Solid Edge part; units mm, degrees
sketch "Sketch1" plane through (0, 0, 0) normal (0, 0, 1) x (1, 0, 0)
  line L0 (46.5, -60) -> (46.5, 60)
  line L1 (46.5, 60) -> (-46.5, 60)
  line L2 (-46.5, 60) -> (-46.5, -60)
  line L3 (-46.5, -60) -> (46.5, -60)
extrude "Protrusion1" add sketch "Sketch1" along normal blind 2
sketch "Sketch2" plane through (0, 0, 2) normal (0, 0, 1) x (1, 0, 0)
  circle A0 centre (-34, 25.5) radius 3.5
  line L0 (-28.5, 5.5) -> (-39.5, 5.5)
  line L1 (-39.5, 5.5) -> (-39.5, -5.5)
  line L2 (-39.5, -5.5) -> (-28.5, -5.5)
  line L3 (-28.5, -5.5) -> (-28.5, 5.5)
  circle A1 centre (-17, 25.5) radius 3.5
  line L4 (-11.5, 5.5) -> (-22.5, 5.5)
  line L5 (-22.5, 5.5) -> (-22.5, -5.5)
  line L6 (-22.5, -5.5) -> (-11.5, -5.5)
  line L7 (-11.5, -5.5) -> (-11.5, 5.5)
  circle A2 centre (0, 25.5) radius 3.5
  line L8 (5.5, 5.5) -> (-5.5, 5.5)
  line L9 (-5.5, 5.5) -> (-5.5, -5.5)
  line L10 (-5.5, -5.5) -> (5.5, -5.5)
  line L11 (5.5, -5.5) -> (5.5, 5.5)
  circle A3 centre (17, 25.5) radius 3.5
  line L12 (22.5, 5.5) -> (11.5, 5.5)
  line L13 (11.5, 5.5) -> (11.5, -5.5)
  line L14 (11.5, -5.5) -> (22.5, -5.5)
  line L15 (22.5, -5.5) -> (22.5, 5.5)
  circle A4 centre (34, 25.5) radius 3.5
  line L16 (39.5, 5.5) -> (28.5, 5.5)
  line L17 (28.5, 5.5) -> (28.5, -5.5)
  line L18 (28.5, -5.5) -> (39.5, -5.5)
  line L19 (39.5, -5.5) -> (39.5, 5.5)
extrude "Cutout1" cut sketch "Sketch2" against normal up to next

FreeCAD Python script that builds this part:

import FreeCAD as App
import Part
import Sketcher


def add_polygon(sketch, points):
    """Adds a closed chain of lines whose ends are joined by coincident constraints."""
    first, n = sketch.GeometryCount, len(points)
    for a, b in zip(points, points[1:] + points[:1]):
        sketch.addGeometry(Part.LineSegment(App.Vector(*a, 0), App.Vector(*b, 0)), False)
    for i in range(n):
        sketch.addConstraint(Sketcher.Constraint("Coincident", first + i, 2, first + (i + 1) % n, 1))

doc = App.newDocument("Part")
body = doc.addObject("PartDesign::Body", "Body")

sketch1 = body.newObject("Sketcher::SketchObject", "Sketch")
sketch1.AttachmentSupport = (doc.getObject("XY_Plane"), [""])
sketch1.MapMode = "FlatFace"
add_polygon(sketch1, [(-46.5, -60), (46.5, -60), (46.5, 60), (-46.5, 60)])
sketch1.addConstraint(Sketcher.Constraint("Horizontal", 0))
sketch1.addConstraint(Sketcher.Constraint("Vertical", 1))
sketch1.addConstraint(Sketcher.Constraint("Horizontal", 2))
sketch1.addConstraint(Sketcher.Constraint("Vertical", 3))
sketch1.addConstraint(Sketcher.Constraint("Symmetric", 0, 2, 2, 2, -1, 1))
sketch1.addConstraint(Sketcher.Constraint("DistanceX", 0, 1, 0, 2, 93.0))
sketch1.addConstraint(Sketcher.Constraint("DistanceY", 1, 1, 1, 2, 120.0))
pad1 = body.newObject("PartDesign::Pad", "Pad")
pad1.Profile = sketch1
pad1.Length = 2

sketch2 = body.newObject("Sketcher::SketchObject", "Sketch001")
sketch2.AttachmentSupport = (doc.getObject("XY_Plane"), [""])
sketch2.MapMode = "FlatFace"
sketch2.AttachmentOffset = App.Placement(App.Vector(0, 0, 2), App.Rotation())
sketch2.addGeometry(Part.Circle(App.Vector(-34, 25.5, 0), App.Vector(0, 0, 1), 3.5), False)
add_polygon(sketch2, [(-28.5, -5.5), (-28.5, 5.5), (-39.5, 5.5), (-39.5, -5.5)])
sketch2.addGeometry(Part.Circle(App.Vector(-17, 25.5, 0), App.Vector(0, 0, 1), 3.5), False)
add_polygon(sketch2, [(-11.5, -5.5), (-11.5, 5.5), (-22.5, 5.5), (-22.5, -5.5)])
sketch2.addGeometry(Part.Circle(App.Vector(0, 25.5, 0), App.Vector(0, 0, 1), 3.5), False)
add_polygon(sketch2, [(5.5, -5.5), (5.5, 5.5), (-5.5, 5.5), (-5.5, -5.5)])
sketch2.addGeometry(Part.Circle(App.Vector(17, 25.5, 0), App.Vector(0, 0, 1), 3.5), False)
add_polygon(sketch2, [(22.5, -5.5), (22.5, 5.5), (11.5, 5.5), (11.5, -5.5)])
sketch2.addGeometry(Part.Circle(App.Vector(34, 25.5, 0), App.Vector(0, 0, 1), 3.5), False)
add_polygon(sketch2, [(39.5, -5.5), (39.5, 5.5), (28.5, 5.5), (28.5, -5.5)])
sketch2.addConstraint(Sketcher.Constraint("Vertical", 1))
sketch2.addConstraint(Sketcher.Constraint("Horizontal", 2))
sketch2.addConstraint(Sketcher.Constraint("Vertical", 3))
sketch2.addConstraint(Sketcher.Constraint("Horizontal", 4))
sketch2.addConstraint(Sketcher.Constraint("Vertical", 6))
sketch2.addConstraint(Sketcher.Constraint("Horizontal", 7))
sketch2.addConstraint(Sketcher.Constraint("Vertical", 8))
sketch2.addConstraint(Sketcher.Constraint("Horizontal", 9))
sketch2.addConstraint(Sketcher.Constraint("Vertical", 11))
sketch2.addConstraint(Sketcher.Constraint("Horizontal", 12))
sketch2.addConstraint(Sketcher.Constraint("Vertical", 13))
sketch2.addConstraint(Sketcher.Constraint("Horizontal", 14))
sketch2.addConstraint(Sketcher.Constraint("Vertical", 16))
sketch2.addConstraint(Sketcher.Constraint("Horizontal", 17))
sketch2.addConstraint(Sketcher.Constraint("Vertical", 18))
sketch2.addConstraint(Sketcher.Constraint("Horizontal", 19))
sketch2.addConstraint(Sketcher.Constraint("Vertical", 21))
sketch2.addConstraint(Sketcher.Constraint("Horizontal", 22))
sketch2.addConstraint(Sketcher.Constraint("Vertical", 23))
sketch2.addConstraint(Sketcher.Constraint("Horizontal", 24))
sketch2.addConstraint(Sketcher.Constraint("Equal", 0, 5))
sketch2.addConstraint(Sketcher.Constraint("Equal", 5, 10))
sketch2.addConstraint(Sketcher.Constraint("Equal", 10, 15))
sketch2.addConstraint(Sketcher.Constraint("Equal", 15, 20))
sketch2.addConstraint(Sketcher.Constraint("Symmetric", 11, 2, 13, 2, -1, 1))
sketch2.addConstraint(Sketcher.Constraint("Symmetric", 8, 2, 16, 2, -1, 1))
sketch2.addConstraint(Sketcher.Constraint("Symmetric", 6, 2, 18, 2, -1, 1))
sketch2.addConstraint(Sketcher.Constraint("Symmetric", 3, 2, 21, 2, -1, 1))
sketch2.addConstraint(Sketcher.Constraint("Symmetric", 1, 2, 23, 2, -1, 1))
sketch2.addConstraint(Sketcher.Constraint("Symmetric", 5, 3, 15, 3, -2))
sketch2.addConstraint(Sketcher.Constraint("Symmetric", 0, 3, 20, 3, -2))
sketch2.addConstraint(Sketcher.Constraint("PointOnObject", 10, 3, -2))
sketch2.addConstraint(Sketcher.Constraint("Horizontal", 0, 3, 5, 3))
sketch2.addConstraint(Sketcher.Constraint("Horizontal", 5, 3, 10, 3))
sketch2.addConstraint(Sketcher.Constraint("Horizontal", 2, 2, 6, 2))
sketch2.addConstraint(Sketcher.Constraint("Horizontal", 4, 2, 8, 2))
sketch2.addConstraint(Sketcher.Constraint("Horizontal", 7, 2, 11, 2))
sketch2.addConstraint(Sketcher.Constraint("Horizontal", 9, 2, 13, 2))
sketch2.addConstraint(Sketcher.Constraint("Equal", 4, 7))
sketch2.addConstraint(Sketcher.Constraint("Equal", 9, 12))
sketch2.addConstraint(Sketcher.Constraint("Equal", 24, 1))
sketch2.addConstraint(Sketcher.Constraint("Diameter", 0, 7.0))
sketch2.addConstraint(Sketcher.Constraint("DistanceX", 2, 2, 2, 1, 11.0))
sketch2.addConstraint(Sketcher.Constraint("DistanceX", 0, 3, -1, 1, 34.0))
sketch2.addConstraint(Sketcher.Constraint("DistanceX", 5, 3, -1, 1, 17.0))
sketch2.addConstraint(Sketcher.Constraint("DistanceY", 1, 2, 0, 3, 20.0))
sketch2.addConstraint(Sketcher.Constraint("DistanceX", 1, 2, 6, 2, 17.0))
sketch2.addConstraint(Sketcher.Constraint("DistanceX", 6, 2, 11, 2, 17.0))
pocket1 = body.newObject("PartDesign::Pocket", "Pocket")
pocket1.Profile = sketch2
pocket1.Type = "UpToFirst"

doc.recompute()
